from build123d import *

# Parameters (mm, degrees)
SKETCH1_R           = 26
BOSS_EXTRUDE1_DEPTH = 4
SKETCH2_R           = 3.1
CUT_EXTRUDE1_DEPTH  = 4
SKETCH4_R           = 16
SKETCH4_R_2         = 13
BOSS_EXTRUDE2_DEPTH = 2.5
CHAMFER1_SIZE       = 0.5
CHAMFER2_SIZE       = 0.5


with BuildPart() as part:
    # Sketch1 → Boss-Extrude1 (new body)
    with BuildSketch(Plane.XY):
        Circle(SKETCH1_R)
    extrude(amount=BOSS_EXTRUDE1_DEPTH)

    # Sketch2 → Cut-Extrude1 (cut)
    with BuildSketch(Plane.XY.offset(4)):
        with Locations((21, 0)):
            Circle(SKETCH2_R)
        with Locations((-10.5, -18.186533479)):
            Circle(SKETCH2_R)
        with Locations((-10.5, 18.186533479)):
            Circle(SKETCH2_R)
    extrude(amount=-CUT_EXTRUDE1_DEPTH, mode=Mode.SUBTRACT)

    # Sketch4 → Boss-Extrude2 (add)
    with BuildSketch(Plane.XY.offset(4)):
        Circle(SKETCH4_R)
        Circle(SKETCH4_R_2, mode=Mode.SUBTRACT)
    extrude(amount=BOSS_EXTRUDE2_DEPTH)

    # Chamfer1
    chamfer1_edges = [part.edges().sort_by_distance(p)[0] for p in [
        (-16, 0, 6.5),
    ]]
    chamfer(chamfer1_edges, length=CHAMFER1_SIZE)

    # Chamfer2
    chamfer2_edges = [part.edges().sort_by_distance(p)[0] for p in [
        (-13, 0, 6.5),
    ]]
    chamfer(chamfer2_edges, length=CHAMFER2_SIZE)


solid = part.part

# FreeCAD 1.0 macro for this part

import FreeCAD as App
import Part
import Sketcher
from FreeCAD import Vector
Q = App.Units.Quantity


def edges_at(feature, points):
    """Names of the edges that pass closest to the given points."""
    edges = feature.Shape.Edges
    near = lambda p: min(range(len(edges)), key=lambda i: edges[i].distToShape(Part.Vertex(*p))[0])
    return sorted({f"Edge{near(p) + 1}" for p in points})

doc = App.newDocument("Part")
body = doc.addObject("PartDesign::Body", "Body")

sketch1 = body.newObject("Sketcher::SketchObject", "Sketch")
sketch1.AttachmentSupport = (doc.getObject("XY_Plane"), [""])
sketch1.MapMode = "FlatFace"
sketch1.addGeometry(Part.Circle(Vector(0, 0, 0), Vector(0, 0, 1), 26), False)
sketch1.addConstraint(Sketcher.Constraint("Coincident", 0, 3, -1, 1))
sketch1.addConstraint(Sketcher.Constraint("Diameter", 0, Q("52 mm")))
pad1 = body.newObject("PartDesign::Pad", "Pad")
pad1.Profile = sketch1
pad1.Length = 4

sketch2 = body.newObject("Sketcher::SketchObject", "Sketch001")
sketch2.AttachmentSupport = (doc.getObject("XY_Plane"), [""])
sketch2.MapMode = "FlatFace"
sketch2.AttachmentOffset = App.Placement(Vector(0, 0, 4), App.Rotation())
sketch2.addGeometry(Part.Circle(Vector(21, 0, 0), Vector(0, 0, 1), 3.1), False)
sketch2.addGeometry(Part.Circle(Vector(-10.5, -18.186533, 0), Vector(0, 0, 1), 3.1), False)
sketch2.addGeometry(Part.Circle(Vector(-10.5, 18.186533, 0), Vector(0, 0, 1), 3.1), False)
sketch2.addConstraint(Sketcher.Constraint("Equal", 0, 1))
sketch2.addConstraint(Sketcher.Constraint("Equal", 1, 2))
sketch2.addConstraint(Sketcher.Constraint("Symmetric", 1, 3, 2, 3, -1))
sketch2.addConstraint(Sketcher.Constraint("PointOnObject", 0, 3, -1))
sketch2.addConstraint(Sketcher.Constraint("Diameter", 0, Q("6.2 mm")))
sketch2.addConstraint(Sketcher.Constraint("DistanceX", -1, 1, 0, 3, Q("21 mm")))
sketch2.addConstraint(Sketcher.Constraint("DistanceX", 1, 3, -1, 1, Q("10.5 mm")))
sketch2.addConstraint(Sketcher.Constraint("DistanceY", 1, 3, -1, 1, Q("18.186533 mm")))
pocket1 = body.newObject("PartDesign::Pocket", "Pocket")
pocket1.Profile = sketch2
pocket1.Length = 4

sketch3 = body.newObject("Sketcher::SketchObject", "Sketch002")
sketch3.AttachmentSupport = (doc.getObject("XY_Plane"), [""])
sketch3.MapMode = "FlatFace"
sketch3.AttachmentOffset = App.Placement(Vector(0, 0, 4), App.Rotation())
sketch3.addGeometry(Part.Circle(Vector(0, 0, 0), Vector(0, 0, 1), 16), False)
sketch3.addGeometry(Part.Circle(Vector(0, 0, 0), Vector(0, 0, 1), 13), False)
sketch3.addConstraint(Sketcher.Constraint("Coincident", 0, 3, -1, 1))
sketch3.addConstraint(Sketcher.Constraint("Coincident", 1, 3, -1, 1))
sketch3.addConstraint(Sketcher.Constraint("Diameter", 0, Q("32 mm")))
sketch3.addConstraint(Sketcher.Constraint("Diameter", 1, Q("26 mm")))
pad2 = body.newObject("PartDesign::Pad", "Pad001")
pad2.Profile = sketch3
pad2.Length = 2.5
doc.recompute()

chamfer = body.newObject("PartDesign::Chamfer", "Chamfer")
chamfer.Base = (pad2, edges_at(pad2, [(-16, 0, 6.5)]))
chamfer.Size = 0.5
doc.recompute()

chamfer2 = body.newObject("PartDesign::Chamfer", "Chamfer001")
chamfer2.Base = (chamfer, edges_at(chamfer, [(-13, 0, 6.5)]))
chamfer2.Size = 0.5

doc.recompute()
